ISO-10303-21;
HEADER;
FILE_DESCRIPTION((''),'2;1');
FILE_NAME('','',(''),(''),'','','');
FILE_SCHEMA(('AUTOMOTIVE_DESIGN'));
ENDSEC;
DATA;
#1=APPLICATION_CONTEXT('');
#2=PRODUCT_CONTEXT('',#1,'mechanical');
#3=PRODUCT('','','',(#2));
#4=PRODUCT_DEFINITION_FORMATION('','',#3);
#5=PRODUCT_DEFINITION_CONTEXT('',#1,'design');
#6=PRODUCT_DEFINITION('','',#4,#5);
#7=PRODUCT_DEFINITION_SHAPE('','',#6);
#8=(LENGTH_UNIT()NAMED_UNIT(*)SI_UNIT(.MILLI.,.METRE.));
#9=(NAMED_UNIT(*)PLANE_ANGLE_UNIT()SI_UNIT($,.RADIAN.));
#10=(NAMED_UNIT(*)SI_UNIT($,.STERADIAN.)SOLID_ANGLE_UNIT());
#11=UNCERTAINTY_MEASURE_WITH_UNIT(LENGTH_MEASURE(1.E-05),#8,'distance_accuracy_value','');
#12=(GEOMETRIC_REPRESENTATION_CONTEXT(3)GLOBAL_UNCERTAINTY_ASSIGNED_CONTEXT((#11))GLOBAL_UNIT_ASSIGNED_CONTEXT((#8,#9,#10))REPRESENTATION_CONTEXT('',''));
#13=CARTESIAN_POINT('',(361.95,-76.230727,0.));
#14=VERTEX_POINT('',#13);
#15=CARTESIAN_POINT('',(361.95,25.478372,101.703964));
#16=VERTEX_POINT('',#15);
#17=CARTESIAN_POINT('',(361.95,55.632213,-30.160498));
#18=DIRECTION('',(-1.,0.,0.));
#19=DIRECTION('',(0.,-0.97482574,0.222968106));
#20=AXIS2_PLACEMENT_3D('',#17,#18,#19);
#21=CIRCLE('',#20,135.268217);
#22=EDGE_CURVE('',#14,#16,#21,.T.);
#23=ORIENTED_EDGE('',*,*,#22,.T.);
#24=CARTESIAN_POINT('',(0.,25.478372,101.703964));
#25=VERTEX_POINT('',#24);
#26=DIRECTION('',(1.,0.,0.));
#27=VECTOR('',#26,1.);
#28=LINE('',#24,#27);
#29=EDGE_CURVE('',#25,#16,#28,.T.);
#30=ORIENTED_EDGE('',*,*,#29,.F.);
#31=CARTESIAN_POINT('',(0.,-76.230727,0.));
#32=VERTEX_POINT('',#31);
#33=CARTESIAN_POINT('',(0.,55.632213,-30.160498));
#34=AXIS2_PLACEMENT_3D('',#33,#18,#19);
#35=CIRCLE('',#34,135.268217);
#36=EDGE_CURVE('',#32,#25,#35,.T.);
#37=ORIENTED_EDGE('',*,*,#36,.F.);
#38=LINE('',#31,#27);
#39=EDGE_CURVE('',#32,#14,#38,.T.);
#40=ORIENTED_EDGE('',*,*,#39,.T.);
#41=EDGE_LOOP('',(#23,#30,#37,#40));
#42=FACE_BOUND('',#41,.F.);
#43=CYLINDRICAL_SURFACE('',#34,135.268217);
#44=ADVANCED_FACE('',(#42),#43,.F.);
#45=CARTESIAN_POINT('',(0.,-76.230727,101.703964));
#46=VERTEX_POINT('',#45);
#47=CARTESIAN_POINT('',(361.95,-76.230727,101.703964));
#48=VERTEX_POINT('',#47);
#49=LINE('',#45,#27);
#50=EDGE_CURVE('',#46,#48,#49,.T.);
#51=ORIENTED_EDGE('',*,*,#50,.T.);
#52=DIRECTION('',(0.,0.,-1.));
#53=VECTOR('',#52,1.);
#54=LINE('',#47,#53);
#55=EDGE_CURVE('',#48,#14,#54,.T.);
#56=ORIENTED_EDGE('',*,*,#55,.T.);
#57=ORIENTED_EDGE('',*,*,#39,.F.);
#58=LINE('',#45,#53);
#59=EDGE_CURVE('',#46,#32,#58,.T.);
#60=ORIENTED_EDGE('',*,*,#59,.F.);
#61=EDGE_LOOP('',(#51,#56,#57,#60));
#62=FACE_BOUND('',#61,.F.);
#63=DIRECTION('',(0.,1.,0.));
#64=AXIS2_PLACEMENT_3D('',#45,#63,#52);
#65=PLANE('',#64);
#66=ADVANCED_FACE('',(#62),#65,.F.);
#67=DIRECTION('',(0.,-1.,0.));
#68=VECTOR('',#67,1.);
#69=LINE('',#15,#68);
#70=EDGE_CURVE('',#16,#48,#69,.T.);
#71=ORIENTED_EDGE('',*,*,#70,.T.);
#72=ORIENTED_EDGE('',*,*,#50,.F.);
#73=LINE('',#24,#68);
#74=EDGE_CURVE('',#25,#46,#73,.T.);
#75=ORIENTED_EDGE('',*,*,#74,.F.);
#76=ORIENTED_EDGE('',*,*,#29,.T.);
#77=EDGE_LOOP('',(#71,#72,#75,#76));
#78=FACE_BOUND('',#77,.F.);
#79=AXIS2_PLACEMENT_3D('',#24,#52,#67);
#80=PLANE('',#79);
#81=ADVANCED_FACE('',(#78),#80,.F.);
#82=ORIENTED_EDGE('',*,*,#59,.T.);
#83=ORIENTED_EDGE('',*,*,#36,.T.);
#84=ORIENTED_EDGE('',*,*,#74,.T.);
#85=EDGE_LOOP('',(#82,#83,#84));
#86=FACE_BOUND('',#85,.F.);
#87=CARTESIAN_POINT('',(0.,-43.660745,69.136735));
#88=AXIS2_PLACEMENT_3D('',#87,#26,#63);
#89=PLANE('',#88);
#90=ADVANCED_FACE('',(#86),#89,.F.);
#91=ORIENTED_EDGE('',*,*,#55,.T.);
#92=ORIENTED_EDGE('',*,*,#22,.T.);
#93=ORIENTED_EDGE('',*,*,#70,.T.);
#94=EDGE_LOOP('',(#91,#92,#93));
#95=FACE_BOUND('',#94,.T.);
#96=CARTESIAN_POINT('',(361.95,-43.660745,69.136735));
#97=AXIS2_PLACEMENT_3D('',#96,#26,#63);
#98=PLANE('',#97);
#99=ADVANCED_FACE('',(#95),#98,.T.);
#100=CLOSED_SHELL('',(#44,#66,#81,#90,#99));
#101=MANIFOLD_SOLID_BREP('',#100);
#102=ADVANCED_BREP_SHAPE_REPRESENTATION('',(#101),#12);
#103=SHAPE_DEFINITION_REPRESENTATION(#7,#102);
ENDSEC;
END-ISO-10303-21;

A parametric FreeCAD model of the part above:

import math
import FreeCAD as App
import Part
import Sketcher
Q = App.Units.Quantity

doc = App.newDocument("Part")
body = doc.addObject("PartDesign::Body", "Body")

# Sketch on YZ plane
sketch1 = body.newObject("Sketcher::SketchObject", "Sketch")
sketch1.AttachmentSupport = (doc.getObject("YZ_Plane"), [""])
sketch1.MapMode = "FlatFace"
sketch1.addGeometry(Part.LineSegment(App.Vector(-76, 102, 0), App.Vector(-76, 0, 0)), False)
sketch1.addGeometry(Part.ArcOfCircle(Part.Circle(App.Vector(56, -30, 0), App.Vector(0, 0, 1), 135), math.radians(103), math.radians(167)), False)
sketch1.addGeometry(Part.LineSegment(App.Vector(25, 102, 0), App.Vector(-76, 102, 0)), False)
sketch1.addConstraint(Sketcher.Constraint("Coincident", 0, 2, 1, 2))
sketch1.addConstraint(Sketcher.Constraint("Coincident", 1, 1, 2, 1))
sketch1.addConstraint(Sketcher.Constraint("Coincident", 2, 2, 0, 1))
sketch1.addConstraint(Sketcher.Constraint("Vertical", 0))
sketch1.addConstraint(Sketcher.Constraint("Horizontal", 2))
sketch1.addConstraint(Sketcher.Constraint("PointOnObject", 0, 2, -1))
sketch1.addConstraint(Sketcher.Constraint("DistanceX", 2, 2, 2, 1, Q("101.709099 mm")))
sketch1.addConstraint(Sketcher.Constraint("Radius", 1, Q("135.268217 mm")))
sketch1.addConstraint(Sketcher.Constraint("DistanceY", 1, 3, -1, 1, Q("30.160498 mm")))
sketch1.addConstraint(Sketcher.Constraint("DistanceX", -1, 1, 1, 1, Q("25.478372 mm")))
pad1 = body.newObject("PartDesign::Pad", "Pad")
pad1.Profile = sketch1
pad1.Length = Q("14.25 in")

doc.recompute()
